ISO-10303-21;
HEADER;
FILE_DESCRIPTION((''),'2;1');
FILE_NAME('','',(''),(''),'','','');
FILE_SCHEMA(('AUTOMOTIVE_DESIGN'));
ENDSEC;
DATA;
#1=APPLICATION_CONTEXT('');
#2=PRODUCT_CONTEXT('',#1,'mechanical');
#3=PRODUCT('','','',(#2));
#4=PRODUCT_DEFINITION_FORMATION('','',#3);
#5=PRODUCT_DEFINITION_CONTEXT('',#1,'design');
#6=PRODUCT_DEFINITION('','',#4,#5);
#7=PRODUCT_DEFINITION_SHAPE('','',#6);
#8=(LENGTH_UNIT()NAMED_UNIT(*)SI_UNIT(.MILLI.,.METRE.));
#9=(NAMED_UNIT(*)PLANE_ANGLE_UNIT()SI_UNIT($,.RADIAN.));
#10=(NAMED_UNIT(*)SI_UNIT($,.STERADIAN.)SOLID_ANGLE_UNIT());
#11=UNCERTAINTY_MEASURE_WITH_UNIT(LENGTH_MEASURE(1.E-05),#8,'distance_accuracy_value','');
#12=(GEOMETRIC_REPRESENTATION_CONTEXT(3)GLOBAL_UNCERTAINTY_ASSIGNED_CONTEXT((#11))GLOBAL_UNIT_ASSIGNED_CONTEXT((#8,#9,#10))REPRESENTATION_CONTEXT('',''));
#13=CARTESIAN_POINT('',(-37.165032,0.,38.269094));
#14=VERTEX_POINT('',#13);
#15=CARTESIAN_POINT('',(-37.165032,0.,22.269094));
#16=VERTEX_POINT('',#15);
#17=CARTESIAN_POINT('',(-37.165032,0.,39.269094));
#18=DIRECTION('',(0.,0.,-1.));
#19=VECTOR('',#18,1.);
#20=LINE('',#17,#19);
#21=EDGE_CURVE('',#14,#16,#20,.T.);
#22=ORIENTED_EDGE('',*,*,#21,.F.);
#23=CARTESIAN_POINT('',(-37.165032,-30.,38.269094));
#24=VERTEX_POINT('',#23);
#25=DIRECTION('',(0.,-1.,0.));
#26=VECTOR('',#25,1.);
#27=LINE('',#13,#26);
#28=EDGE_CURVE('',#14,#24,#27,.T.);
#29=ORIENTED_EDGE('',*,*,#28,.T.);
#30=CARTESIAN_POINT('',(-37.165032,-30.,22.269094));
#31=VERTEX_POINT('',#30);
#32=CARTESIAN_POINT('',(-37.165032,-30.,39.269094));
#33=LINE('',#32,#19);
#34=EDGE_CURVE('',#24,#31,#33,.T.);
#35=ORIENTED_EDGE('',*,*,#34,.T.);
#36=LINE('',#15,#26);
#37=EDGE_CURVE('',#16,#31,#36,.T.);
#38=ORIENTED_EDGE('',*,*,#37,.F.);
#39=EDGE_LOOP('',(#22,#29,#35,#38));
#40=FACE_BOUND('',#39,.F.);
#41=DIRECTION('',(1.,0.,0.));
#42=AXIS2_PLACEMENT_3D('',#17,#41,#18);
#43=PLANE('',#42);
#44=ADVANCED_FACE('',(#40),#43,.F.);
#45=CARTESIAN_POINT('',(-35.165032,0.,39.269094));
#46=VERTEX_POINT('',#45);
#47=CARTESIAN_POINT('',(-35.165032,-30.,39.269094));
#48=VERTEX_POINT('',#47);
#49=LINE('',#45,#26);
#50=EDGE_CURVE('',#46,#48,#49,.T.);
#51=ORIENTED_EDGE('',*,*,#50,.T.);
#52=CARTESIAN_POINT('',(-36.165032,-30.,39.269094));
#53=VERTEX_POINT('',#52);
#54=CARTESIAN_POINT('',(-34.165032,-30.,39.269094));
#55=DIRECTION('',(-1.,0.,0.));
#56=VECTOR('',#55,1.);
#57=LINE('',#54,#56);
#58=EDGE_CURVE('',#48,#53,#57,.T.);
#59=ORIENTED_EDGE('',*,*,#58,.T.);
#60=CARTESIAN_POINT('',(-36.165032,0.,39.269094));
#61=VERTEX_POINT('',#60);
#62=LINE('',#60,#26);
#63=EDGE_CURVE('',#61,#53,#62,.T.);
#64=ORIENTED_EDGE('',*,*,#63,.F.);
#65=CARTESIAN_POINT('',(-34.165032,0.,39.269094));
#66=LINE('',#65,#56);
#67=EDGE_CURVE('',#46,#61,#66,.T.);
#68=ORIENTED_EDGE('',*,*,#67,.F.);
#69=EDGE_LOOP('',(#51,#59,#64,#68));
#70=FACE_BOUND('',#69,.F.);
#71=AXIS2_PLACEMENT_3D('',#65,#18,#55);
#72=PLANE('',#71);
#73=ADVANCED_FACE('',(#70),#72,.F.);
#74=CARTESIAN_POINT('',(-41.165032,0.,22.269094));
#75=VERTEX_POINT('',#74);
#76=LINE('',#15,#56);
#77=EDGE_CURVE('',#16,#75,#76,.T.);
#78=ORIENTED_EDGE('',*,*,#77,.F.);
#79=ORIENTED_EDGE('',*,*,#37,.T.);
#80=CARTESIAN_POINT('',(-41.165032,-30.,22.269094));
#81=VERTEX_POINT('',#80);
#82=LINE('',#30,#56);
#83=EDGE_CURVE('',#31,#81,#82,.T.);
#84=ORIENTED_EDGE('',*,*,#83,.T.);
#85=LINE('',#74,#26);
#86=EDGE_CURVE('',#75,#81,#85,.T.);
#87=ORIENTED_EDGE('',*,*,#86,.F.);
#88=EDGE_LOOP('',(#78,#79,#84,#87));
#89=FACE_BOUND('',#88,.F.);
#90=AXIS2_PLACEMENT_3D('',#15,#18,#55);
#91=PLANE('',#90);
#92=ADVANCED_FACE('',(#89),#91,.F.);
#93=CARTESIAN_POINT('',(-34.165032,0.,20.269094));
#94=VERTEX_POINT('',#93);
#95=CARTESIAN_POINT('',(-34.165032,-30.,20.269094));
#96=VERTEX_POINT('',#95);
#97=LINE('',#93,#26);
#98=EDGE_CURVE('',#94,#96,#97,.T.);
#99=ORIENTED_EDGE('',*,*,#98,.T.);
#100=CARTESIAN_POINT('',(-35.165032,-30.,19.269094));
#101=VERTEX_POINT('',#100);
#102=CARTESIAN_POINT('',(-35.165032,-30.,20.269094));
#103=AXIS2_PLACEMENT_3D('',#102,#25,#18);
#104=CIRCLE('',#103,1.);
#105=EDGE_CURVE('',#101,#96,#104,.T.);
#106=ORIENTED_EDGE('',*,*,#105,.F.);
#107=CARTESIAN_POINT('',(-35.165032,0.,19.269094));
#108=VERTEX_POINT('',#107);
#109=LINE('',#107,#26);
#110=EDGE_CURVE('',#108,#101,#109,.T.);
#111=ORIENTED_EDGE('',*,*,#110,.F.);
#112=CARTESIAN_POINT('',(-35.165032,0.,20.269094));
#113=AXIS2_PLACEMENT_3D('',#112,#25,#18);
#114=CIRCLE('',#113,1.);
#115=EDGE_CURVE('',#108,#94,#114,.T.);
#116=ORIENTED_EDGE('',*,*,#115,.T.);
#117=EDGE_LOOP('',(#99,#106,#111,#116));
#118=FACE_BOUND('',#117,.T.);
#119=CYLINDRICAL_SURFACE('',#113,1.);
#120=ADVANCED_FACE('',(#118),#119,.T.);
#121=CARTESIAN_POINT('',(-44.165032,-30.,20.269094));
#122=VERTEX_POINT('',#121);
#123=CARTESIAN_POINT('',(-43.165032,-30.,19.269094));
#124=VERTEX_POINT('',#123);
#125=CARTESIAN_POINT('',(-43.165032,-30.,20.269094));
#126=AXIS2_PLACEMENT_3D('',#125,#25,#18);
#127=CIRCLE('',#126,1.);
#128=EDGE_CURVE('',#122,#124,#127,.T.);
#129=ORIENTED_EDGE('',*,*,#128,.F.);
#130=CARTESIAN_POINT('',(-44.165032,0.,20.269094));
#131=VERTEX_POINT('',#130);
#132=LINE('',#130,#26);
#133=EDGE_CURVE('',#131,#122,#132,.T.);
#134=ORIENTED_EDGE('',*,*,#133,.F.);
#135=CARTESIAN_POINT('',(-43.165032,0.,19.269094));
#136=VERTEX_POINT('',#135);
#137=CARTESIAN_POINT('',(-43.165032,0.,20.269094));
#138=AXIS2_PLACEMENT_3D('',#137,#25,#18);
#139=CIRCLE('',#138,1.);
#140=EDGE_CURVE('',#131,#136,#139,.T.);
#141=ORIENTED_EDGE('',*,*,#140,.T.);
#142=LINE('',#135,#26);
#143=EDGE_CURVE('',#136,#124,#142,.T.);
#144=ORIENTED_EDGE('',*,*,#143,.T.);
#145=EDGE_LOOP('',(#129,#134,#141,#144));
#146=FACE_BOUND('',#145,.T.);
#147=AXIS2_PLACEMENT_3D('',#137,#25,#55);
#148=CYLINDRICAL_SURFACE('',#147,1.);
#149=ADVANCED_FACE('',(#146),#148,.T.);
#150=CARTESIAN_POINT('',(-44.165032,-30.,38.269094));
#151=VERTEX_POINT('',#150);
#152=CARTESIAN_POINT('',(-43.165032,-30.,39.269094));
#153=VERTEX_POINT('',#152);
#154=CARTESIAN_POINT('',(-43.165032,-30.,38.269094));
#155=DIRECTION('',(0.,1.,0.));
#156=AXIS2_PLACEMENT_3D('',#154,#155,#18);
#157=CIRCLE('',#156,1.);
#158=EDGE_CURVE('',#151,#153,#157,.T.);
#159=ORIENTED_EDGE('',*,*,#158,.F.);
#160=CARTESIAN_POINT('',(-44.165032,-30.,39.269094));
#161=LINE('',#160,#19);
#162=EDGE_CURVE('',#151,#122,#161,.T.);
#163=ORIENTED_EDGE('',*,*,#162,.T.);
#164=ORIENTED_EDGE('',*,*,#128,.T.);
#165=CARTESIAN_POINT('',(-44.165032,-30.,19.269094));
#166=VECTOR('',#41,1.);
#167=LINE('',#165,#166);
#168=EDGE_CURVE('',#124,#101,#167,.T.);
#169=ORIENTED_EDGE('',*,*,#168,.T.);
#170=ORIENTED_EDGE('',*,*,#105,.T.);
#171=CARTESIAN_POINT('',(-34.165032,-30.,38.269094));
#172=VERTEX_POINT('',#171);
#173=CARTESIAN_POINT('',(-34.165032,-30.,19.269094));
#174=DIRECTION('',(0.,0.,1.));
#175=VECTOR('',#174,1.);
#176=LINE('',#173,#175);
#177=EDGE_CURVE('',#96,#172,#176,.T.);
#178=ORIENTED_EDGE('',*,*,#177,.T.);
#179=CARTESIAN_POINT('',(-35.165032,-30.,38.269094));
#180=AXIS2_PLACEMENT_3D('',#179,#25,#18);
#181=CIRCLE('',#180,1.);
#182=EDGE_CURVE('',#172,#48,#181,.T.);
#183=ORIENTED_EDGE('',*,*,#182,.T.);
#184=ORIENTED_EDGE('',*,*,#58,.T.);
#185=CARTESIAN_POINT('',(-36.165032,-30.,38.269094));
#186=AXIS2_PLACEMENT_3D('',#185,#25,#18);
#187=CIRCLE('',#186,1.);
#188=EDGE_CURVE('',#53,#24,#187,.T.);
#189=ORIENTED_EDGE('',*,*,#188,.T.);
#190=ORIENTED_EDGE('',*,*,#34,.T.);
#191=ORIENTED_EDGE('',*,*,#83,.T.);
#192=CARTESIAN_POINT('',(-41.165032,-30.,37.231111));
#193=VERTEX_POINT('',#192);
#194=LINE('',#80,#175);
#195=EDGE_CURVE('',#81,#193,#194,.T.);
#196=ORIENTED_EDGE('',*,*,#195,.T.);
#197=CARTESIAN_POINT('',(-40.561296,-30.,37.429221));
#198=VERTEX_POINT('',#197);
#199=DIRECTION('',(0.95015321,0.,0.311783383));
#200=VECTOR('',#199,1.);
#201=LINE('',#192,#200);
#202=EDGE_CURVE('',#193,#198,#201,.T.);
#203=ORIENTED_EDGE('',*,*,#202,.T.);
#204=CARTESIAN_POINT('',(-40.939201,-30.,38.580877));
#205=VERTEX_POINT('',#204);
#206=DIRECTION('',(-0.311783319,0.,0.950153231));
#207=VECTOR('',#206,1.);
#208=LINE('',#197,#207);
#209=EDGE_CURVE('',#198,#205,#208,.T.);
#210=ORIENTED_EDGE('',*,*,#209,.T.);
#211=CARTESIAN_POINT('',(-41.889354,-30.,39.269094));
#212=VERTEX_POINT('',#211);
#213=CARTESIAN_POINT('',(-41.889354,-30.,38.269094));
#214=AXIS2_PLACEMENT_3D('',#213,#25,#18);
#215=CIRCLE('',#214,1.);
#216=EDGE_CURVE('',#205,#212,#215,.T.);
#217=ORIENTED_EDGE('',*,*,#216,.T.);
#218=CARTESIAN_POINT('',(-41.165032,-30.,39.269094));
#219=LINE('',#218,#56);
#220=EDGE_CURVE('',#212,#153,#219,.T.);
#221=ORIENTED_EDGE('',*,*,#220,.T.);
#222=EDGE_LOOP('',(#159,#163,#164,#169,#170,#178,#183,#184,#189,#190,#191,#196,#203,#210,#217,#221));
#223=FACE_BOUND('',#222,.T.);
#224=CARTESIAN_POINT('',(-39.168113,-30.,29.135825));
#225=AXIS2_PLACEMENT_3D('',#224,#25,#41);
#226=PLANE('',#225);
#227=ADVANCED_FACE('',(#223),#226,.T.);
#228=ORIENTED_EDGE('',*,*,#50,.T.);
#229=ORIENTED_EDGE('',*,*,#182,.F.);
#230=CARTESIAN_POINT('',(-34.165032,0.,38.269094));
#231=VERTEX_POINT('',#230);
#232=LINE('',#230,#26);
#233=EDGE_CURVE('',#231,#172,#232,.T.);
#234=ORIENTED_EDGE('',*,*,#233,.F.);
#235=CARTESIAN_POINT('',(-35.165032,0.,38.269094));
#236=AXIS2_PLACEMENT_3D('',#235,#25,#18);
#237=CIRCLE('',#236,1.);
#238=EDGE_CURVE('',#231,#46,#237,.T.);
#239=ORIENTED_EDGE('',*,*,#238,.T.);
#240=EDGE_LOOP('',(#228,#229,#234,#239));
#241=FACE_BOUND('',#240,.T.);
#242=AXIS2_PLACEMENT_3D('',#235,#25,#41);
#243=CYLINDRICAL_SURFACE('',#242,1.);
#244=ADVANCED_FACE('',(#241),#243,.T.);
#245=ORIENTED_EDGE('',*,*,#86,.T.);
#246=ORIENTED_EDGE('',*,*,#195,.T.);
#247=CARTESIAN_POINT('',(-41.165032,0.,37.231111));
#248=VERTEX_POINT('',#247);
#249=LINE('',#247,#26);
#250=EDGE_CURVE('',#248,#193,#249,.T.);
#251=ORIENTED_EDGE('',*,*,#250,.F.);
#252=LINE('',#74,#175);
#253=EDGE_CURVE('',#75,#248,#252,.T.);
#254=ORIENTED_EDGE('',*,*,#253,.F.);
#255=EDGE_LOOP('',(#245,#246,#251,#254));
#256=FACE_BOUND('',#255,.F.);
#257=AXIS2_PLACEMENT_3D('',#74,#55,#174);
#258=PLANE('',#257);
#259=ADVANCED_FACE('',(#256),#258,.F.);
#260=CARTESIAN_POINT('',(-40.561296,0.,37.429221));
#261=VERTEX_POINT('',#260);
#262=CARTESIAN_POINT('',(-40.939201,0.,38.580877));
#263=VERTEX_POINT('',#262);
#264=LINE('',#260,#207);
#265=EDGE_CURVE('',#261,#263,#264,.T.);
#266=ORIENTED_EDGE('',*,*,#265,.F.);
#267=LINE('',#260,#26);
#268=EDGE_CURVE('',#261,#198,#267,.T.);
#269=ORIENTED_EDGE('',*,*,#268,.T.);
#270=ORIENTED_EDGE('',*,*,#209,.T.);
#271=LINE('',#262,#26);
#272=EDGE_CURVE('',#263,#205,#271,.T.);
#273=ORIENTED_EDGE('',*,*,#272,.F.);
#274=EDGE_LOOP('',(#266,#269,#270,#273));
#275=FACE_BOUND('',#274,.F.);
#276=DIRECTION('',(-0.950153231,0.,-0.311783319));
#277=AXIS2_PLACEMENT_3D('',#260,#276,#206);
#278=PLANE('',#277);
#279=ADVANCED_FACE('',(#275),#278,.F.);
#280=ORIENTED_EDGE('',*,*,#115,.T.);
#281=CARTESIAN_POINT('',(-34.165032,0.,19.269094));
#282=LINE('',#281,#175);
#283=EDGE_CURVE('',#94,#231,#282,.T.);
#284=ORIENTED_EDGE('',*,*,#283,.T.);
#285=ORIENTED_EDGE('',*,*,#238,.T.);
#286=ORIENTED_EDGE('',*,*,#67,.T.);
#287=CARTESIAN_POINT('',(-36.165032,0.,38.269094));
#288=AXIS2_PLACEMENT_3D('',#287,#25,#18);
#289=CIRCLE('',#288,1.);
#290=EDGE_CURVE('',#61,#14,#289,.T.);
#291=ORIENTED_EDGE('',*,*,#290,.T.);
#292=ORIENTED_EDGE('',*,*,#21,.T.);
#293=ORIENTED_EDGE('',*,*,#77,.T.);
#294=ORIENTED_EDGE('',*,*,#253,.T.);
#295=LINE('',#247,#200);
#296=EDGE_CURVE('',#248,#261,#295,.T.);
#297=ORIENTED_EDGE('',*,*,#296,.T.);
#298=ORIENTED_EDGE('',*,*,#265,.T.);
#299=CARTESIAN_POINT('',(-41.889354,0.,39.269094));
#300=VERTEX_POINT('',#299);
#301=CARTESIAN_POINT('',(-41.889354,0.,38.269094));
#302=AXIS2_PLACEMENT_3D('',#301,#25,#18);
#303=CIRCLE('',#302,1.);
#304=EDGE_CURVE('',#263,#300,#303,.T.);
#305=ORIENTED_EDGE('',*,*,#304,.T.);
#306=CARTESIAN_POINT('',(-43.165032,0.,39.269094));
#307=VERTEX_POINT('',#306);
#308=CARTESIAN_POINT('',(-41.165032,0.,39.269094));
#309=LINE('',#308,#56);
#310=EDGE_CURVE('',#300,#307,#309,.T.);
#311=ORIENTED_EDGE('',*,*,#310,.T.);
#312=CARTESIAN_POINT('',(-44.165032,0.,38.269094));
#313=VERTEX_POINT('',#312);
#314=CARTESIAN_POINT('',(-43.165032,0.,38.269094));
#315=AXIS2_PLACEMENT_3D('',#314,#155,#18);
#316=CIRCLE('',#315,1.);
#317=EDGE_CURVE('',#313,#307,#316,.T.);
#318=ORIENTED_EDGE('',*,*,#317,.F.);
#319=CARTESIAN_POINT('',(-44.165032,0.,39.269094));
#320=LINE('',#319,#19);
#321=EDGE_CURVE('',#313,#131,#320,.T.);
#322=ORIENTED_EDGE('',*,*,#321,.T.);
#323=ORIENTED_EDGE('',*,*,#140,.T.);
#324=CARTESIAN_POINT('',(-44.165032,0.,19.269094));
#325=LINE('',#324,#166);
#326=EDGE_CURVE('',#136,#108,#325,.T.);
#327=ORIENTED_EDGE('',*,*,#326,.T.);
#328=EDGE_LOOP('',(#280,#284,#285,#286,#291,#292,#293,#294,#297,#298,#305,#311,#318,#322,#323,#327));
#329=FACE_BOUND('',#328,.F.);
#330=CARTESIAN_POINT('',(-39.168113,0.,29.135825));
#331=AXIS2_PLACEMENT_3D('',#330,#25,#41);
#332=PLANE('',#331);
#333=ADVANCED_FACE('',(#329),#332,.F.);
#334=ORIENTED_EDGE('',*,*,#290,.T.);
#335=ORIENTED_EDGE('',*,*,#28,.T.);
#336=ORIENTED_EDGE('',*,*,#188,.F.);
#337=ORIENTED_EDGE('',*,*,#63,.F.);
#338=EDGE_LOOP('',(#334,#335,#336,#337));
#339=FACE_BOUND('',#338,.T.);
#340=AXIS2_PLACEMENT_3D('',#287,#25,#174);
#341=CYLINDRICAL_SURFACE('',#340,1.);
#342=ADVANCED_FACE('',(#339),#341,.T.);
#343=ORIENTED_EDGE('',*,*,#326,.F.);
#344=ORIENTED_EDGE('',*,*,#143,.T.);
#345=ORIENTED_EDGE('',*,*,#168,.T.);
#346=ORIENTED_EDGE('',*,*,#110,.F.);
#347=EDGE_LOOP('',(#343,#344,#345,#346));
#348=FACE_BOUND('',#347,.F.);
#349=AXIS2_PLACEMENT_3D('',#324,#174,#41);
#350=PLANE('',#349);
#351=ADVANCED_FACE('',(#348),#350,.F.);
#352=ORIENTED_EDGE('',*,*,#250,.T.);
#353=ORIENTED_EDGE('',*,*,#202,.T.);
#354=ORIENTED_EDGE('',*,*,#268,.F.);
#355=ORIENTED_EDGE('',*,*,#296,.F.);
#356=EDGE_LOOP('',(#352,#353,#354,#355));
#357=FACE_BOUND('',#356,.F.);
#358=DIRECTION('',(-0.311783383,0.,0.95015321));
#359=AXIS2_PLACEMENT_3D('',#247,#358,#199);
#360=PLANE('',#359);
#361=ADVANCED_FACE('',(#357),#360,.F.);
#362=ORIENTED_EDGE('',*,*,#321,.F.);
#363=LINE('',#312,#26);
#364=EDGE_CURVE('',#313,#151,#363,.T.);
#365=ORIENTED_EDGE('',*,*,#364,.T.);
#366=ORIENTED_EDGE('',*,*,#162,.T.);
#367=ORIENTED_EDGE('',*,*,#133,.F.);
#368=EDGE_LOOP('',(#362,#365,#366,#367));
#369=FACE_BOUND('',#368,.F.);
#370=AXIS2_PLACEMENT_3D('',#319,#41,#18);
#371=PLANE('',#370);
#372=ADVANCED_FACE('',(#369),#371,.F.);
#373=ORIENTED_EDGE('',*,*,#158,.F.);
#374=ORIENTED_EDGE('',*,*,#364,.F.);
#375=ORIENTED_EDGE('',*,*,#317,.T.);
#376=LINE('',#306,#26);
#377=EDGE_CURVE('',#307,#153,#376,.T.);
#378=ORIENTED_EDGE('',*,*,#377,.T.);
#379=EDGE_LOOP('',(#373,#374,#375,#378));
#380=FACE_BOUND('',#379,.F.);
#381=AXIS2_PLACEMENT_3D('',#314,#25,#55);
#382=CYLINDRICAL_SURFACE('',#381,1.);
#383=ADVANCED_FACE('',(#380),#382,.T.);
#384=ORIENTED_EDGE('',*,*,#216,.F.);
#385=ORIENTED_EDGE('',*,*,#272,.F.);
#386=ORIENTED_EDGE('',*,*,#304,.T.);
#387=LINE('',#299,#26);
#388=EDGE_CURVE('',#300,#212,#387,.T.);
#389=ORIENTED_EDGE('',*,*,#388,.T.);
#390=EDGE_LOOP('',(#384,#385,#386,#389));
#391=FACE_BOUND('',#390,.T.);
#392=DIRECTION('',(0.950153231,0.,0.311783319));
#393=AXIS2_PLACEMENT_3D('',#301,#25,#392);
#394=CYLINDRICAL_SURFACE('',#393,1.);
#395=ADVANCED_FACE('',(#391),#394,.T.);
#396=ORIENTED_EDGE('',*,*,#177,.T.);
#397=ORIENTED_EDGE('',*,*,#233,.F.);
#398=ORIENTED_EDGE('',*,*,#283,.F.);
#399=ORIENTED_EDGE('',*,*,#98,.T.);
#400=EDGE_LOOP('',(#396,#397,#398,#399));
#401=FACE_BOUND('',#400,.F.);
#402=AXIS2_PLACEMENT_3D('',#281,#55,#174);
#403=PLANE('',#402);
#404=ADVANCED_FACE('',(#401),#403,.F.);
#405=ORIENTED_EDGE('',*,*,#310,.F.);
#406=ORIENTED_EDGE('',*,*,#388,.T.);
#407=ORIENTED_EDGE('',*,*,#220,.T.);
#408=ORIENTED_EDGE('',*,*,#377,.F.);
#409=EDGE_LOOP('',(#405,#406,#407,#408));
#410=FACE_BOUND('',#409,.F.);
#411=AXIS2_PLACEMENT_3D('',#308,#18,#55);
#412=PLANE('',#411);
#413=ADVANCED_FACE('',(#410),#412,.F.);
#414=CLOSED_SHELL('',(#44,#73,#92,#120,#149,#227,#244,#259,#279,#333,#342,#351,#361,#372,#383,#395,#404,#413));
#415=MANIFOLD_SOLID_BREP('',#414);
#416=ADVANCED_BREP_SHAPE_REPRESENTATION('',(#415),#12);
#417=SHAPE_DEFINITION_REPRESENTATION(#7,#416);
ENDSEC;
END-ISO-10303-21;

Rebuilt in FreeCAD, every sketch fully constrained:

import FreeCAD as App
import Part
import Sketcher
from FreeCAD import Vector


def edges_at(feature, points):
    """Names of the edges that pass closest to the given points."""
    edges = feature.Shape.Edges
    near = lambda p: min(range(len(edges)), key=lambda i: edges[i].distToShape(Part.Vertex(*p))[0])
    return sorted({f"Edge{near(p) + 1}" for p in points})


def add_polygon(sketch, points):
    """Adds a closed chain of lines whose ends are joined by coincident constraints."""
    first, n = sketch.GeometryCount, len(points)
    for a, b in zip(points, points[1:] + points[:1]):
        sketch.addGeometry(Part.LineSegment(App.Vector(*a, 0), App.Vector(*b, 0)), False)
    for i in range(n):
        sketch.addConstraint(Sketcher.Constraint("Coincident", first + i, 2, first + (i + 1) % n, 1))

doc = App.newDocument("Part")
params = doc.addObject("Spreadsheet::Sheet", "Params")
for row, (alias, value) in enumerate([
    ("sketch1_width", "10 mm"),
    ("sketch1_width2", "3 mm"),
    ("sketch1_height", "20 mm"),
    ("sketch1_height2", "17 mm"),
    ("pad1_length", "30 mm"),
    ("fillet_radius", "1 mm"),
], start=1):
    params.set(f"A{row}", alias)
    params.set(f"B{row}", "=" + value)
    params.setAlias(f"B{row}", alias)

body = doc.addObject("PartDesign::Body", "Body")

sketch1 = body.newObject("Sketcher::SketchObject", "Sketch")
sketch1.AttachmentSupport = (doc.getObject("XZ_Plane"), [""])
sketch1.MapMode = "FlatFace"
add_polygon(sketch1, [(-44.2, 39.3), (-44.2, 19.3), (-34.2, 19.3), (-34.2, 39.3), (-37.2, 39.3), (-37.2, 22.3), (-41.2, 22.3), (-41.2, 37.2), (-40.6, 37.4), (-41.2, 39.3)])
sketch1.addConstraint([
    Sketcher.Constraint("Vertical", 0),
    Sketcher.Constraint("Horizontal", 1),
    Sketcher.Constraint("Vertical", 2),
    Sketcher.Constraint("Horizontal", 3),
    Sketcher.Constraint("Vertical", 4),
    Sketcher.Constraint("Horizontal", 5),
    Sketcher.Constraint("Vertical", 6),
    Sketcher.Constraint("Horizontal", 9),
    Sketcher.Constraint("Perpendicular", 7, 8),
    Sketcher.Constraint("Horizontal", 3, 2, 8, 2),
    Sketcher.Constraint("Vertical", 6, 2, 8, 2),
    Sketcher.Constraint("Equal", 3, 9),
    Sketcher.Constraint("DistanceX", 1, 1, 1, 2, 10.0),
    Sketcher.Constraint("DistanceX", 3, 2, 3, 1, 3.0),
    Sketcher.Constraint("DistanceY", 0, 2, 0, 1, 20.0),
    Sketcher.Constraint("DistanceY", 4, 2, 4, 1, 17.0),
    Sketcher.Constraint("Distance", 7, 0.635409),
    Sketcher.Constraint("DistanceY", 6, 1, 6, 2, 14.962017),
    Sketcher.Constraint("DistanceX", 0, 2, -1, 1, 44.165032),
    Sketcher.Constraint("DistanceY", -1, 1, 6, 2, 37.231111),
])
sketch1.setExpression("Constraints[22]", "Params.sketch1_width")
sketch1.setExpression("Constraints[23]", "Params.sketch1_width2")
sketch1.setExpression("Constraints[24]", "Params.sketch1_height")
sketch1.setExpression("Constraints[25]", "Params.sketch1_height2")
pad1 = body.newObject("PartDesign::Pad", "Pad")
pad1.Profile = sketch1
pad1.setExpression("Length", "Params.pad1_length")
doc.recompute()

fillet = body.newObject("PartDesign::Fillet", "Fillet")
fillet.Base = (pad1, edges_at(pad1, [
    (-34.165, -15, 19.269),
    (-34.165, -15, 39.269),
    (-37.165, -15, 39.269),
    (-44.165, -15, 19.269),
    (-44.165, -15, 39.269),
    (-41.165, -15, 39.269),
]))
fillet.setExpression("Radius", "Params.fillet_radius")

doc.recompute()
